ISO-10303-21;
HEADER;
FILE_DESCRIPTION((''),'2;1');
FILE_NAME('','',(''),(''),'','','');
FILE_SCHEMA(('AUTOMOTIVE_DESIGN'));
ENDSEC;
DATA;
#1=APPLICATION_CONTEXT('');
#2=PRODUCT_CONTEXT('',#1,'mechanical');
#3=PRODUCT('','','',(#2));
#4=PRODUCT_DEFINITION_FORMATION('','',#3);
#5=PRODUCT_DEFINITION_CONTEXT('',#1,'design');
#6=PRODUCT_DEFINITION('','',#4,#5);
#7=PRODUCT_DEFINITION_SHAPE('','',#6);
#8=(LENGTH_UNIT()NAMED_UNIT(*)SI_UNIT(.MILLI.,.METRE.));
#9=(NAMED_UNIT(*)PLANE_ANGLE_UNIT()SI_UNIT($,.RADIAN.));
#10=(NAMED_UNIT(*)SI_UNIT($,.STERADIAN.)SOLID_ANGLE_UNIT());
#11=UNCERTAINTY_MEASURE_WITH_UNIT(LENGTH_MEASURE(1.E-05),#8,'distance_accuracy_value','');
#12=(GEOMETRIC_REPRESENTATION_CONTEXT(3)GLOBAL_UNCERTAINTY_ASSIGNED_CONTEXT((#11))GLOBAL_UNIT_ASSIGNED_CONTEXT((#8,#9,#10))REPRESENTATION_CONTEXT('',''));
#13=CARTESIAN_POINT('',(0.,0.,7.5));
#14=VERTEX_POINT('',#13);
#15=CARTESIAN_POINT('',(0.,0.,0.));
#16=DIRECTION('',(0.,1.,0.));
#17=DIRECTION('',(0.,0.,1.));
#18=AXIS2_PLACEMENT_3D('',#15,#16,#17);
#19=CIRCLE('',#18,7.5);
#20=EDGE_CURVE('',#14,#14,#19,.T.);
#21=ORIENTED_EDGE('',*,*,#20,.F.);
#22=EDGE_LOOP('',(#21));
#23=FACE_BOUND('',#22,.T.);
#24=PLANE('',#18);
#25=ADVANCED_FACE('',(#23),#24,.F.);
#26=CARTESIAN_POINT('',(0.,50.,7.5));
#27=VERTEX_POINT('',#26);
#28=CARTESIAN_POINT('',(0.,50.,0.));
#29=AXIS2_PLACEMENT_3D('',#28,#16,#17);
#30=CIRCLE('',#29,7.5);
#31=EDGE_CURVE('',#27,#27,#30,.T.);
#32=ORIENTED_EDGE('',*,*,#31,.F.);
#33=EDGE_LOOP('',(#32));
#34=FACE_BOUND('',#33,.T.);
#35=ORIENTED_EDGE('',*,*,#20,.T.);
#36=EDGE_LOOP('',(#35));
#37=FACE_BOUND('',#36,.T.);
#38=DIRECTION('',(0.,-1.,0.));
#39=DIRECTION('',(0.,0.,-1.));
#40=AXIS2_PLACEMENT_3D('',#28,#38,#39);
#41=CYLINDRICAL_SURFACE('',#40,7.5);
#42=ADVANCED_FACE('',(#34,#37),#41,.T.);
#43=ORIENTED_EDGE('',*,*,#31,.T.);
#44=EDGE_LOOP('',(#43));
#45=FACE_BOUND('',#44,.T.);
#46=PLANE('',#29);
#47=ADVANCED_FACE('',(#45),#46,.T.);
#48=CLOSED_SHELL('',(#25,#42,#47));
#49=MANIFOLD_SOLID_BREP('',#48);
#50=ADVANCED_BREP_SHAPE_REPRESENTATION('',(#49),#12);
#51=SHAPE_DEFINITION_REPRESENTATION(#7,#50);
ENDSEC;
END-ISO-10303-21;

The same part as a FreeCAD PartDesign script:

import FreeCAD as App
import Part
import Sketcher
from FreeCAD import Vector

doc = App.newDocument("Part")
params = doc.addObject("Spreadsheet::Sheet", "Params")
for row, (alias, value) in enumerate([
    ("sketch1_diameter", "15 mm"),
    ("pad1_length", "50 mm"),
], start=1):
    params.set(f"A{row}", alias)
    params.set(f"B{row}", "=" + value)
    params.setAlias(f"B{row}", alias)

body = doc.addObject("PartDesign::Body", "Body")

sketch1 = body.newObject("Sketcher::SketchObject", "Sketch")
sketch1.AttachmentSupport = (doc.getObject("XZ_Plane"), [""])
sketch1.MapMode = "FlatFace"
sketch1.addGeometry(Part.Circle(Vector(0, 0, 0), Vector(0, 0, 1), 8), False)
sketch1.addConstraint([
    Sketcher.Constraint("Coincident", 0, 3, -1, 1),
    Sketcher.Constraint("Diameter", 0, 15.0),
])
sketch1.setExpression("Constraints[1]", "Params.sketch1_diameter")
pad1 = body.newObject("PartDesign::Pad", "Pad")
pad1.Profile = sketch1
pad1.setExpression("Length", "Params.pad1_length")
pad1.Reversed = True

doc.recompute()
